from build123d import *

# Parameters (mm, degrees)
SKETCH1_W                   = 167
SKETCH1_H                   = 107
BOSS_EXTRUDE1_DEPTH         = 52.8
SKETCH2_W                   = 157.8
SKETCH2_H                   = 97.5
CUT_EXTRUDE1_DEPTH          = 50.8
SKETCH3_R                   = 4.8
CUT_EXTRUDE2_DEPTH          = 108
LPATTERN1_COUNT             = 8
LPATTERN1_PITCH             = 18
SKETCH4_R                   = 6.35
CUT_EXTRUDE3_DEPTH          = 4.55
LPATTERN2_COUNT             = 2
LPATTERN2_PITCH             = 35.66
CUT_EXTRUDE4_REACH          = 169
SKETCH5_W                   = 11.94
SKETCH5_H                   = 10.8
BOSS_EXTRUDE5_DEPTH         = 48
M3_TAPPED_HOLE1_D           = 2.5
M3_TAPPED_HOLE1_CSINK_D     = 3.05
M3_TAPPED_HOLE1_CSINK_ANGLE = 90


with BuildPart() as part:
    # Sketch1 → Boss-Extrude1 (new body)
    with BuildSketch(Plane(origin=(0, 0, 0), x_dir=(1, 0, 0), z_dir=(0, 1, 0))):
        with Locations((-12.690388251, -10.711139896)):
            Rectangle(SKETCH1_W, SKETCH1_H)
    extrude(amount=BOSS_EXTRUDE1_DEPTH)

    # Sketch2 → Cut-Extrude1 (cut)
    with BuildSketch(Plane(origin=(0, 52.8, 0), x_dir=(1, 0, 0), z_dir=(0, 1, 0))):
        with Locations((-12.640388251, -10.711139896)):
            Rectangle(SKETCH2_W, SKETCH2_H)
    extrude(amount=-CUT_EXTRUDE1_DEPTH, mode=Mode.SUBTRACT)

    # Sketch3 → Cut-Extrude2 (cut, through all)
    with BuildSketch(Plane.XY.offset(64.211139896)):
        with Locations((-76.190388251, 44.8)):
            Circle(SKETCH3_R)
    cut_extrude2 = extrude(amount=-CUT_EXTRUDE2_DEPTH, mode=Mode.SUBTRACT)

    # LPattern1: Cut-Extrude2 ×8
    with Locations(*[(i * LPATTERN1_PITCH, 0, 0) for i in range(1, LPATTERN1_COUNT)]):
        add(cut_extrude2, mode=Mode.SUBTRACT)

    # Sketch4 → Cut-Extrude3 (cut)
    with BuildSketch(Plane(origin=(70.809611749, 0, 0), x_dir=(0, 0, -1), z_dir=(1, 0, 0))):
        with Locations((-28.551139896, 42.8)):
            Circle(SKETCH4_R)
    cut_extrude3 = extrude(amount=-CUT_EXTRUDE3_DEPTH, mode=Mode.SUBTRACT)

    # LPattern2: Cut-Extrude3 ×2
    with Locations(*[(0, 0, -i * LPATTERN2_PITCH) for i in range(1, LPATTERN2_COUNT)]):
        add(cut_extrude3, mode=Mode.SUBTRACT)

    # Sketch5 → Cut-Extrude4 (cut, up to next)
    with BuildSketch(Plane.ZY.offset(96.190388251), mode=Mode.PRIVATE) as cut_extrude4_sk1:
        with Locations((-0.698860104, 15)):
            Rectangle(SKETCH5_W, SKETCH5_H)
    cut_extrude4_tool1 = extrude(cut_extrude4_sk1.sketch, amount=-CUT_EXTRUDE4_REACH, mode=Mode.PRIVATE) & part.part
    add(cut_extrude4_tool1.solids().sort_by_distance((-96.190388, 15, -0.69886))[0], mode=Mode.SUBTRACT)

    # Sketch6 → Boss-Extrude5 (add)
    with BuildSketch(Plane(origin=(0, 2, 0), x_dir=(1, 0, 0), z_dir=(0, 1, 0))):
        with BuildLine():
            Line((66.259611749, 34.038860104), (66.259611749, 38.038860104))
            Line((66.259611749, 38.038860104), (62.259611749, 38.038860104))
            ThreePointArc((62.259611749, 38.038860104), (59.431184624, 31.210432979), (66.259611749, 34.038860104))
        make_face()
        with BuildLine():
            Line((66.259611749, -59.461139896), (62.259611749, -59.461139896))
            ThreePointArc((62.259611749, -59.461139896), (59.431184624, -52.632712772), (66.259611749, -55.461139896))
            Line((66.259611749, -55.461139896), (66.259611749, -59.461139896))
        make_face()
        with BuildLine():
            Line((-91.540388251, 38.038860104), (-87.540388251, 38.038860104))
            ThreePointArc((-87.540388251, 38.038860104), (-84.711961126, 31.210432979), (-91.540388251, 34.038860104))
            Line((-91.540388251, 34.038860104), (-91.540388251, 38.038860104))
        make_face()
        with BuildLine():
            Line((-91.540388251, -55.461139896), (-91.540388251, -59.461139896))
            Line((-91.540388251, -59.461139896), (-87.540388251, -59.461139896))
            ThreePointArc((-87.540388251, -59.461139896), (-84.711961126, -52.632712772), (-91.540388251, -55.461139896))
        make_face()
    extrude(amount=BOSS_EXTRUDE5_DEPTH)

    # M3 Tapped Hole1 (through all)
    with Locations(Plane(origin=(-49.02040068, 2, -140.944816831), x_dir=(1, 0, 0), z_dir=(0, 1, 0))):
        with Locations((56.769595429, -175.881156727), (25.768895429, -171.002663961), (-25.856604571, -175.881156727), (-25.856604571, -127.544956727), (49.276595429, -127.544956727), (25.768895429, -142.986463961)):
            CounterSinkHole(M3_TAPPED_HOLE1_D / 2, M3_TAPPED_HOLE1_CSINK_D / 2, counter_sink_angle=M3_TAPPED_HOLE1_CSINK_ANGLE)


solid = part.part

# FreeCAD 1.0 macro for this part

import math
import FreeCAD as App
import Part
import Sketcher

doc = App.newDocument("Part")
body = doc.addObject("PartDesign::Body", "Body")

# Sketch on XZ plane
sketch1 = body.newObject("Sketcher::SketchObject", "Sketch")
sketch1.AttachmentSupport = (doc.getObject("XZ_Plane"), [""])
sketch1.MapMode = "FlatFace"
sketch1.addGeometry([
    Part.LineSegment(App.Vector(-96, -43, 0), App.Vector(-96, 64, 0)),
    Part.LineSegment(App.Vector(-96, 64, 0), App.Vector(71, 64, 0)),
    Part.LineSegment(App.Vector(71, 64, 0), App.Vector(71, -43, 0)),
    Part.LineSegment(App.Vector(71, -43, 0), App.Vector(-96, -43, 0)),
], False)
sketch1.addConstraint([
    Sketcher.Constraint("Coincident", 0, 2, 1, 1),
    Sketcher.Constraint("Coincident", 1, 2, 2, 1),
    Sketcher.Constraint("Coincident", 2, 2, 3, 1),
    Sketcher.Constraint("Coincident", 3, 2, 0, 1),
    Sketcher.Constraint("Vertical", 0),
    Sketcher.Constraint("Horizontal", 1),
    Sketcher.Constraint("Vertical", 2),
    Sketcher.Constraint("Horizontal", 3),
    Sketcher.Constraint("DistanceX", 1, 1, 1, 2, 167.0),
    Sketcher.Constraint("DistanceY", 0, 1, 0, 2, 107.0),
    Sketcher.Constraint("DistanceX", 0, 2, -1, 1, 96.190388),
    Sketcher.Constraint("DistanceY", -1, 1, 0, 2, 64.21114),
])
pad1 = body.newObject("PartDesign::Pad", "Pad")
pad1.Profile = sketch1
pad1.Length = 52.8
pad1.Reversed = True

# Sketch on XZ plane
sketch2 = body.newObject("Sketcher::SketchObject", "Sketch001")
sketch2.AttachmentSupport = (doc.getObject("XZ_Plane"), [""])
sketch2.MapMode = "FlatFace"
sketch2.AttachmentOffset = App.Placement(App.Vector(0, 0, -52.8), App.Rotation())
sketch2.addGeometry([
    Part.LineSegment(App.Vector(-92, -38, 0), App.Vector(-92, 59, 0)),
    Part.LineSegment(App.Vector(-92, 59, 0), App.Vector(66, 59, 0)),
    Part.LineSegment(App.Vector(66, 59, 0), App.Vector(66, -38, 0)),
    Part.LineSegment(App.Vector(66, -38, 0), App.Vector(-92, -38, 0)),
], False)
sketch2.addConstraint([
    Sketcher.Constraint("Coincident", 0, 2, 1, 1),
    Sketcher.Constraint("Coincident", 1, 2, 2, 1),
    Sketcher.Constraint("Coincident", 2, 2, 3, 1),
    Sketcher.Constraint("Coincident", 3, 2, 0, 1),
    Sketcher.Constraint("Vertical", 0),
    Sketcher.Constraint("Horizontal", 1),
    Sketcher.Constraint("Vertical", 2),
    Sketcher.Constraint("Horizontal", 3),
    Sketcher.Constraint("DistanceX", 1, 1, 1, 2, 157.8),
    Sketcher.Constraint("DistanceY", 0, 1, 0, 2, 97.5),
    Sketcher.Constraint("DistanceX", 0, 2, -1, 1, 91.540388),
    Sketcher.Constraint("DistanceY", -1, 1, 0, 2, 59.46114),
])
pocket1 = body.newObject("PartDesign::Pocket", "Pocket")
pocket1.Profile = sketch2
pocket1.Length = 50.8
pocket1.Reversed = True

# Sketch on XY plane
sketch3 = body.newObject("Sketcher::SketchObject", "Sketch002")
sketch3.AttachmentSupport = (doc.getObject("XY_Plane"), [""])
sketch3.MapMode = "FlatFace"
sketch3.AttachmentOffset = App.Placement(App.Vector(0, 0, 64.21114), App.Rotation())
sketch3.addGeometry(Part.Circle(App.Vector(-76.2, 44.8, 0), App.Vector(0, 0, 1), 4.8), False)
sketch3.addConstraint([
    Sketcher.Constraint("Diameter", 0, 9.6),
    Sketcher.Constraint("DistanceY", -1, 1, 0, 3, 44.8),
    Sketcher.Constraint("DistanceX", 0, 3, -1, 1, 76.190388),
])
pocket2 = body.newObject("PartDesign::Pocket", "Pocket001")
pocket2.Profile = sketch3
pocket2.Type = "ThroughAll"
doc.recompute()

linearpattern = body.newObject("PartDesign::LinearPattern", "LinearPattern")
linearpattern.Originals = [pocket2]
linearpattern.Direction = (doc.getObject("X_Axis"), [""])
linearpattern.Mode = "offset"
linearpattern.Offset = 18
linearpattern.Occurrences = 8
body.Tip = linearpattern

# Sketch on YZ plane
sketch4 = body.newObject("Sketcher::SketchObject", "Sketch003")
sketch4.AttachmentSupport = (doc.getObject("YZ_Plane"), [""])
sketch4.MapMode = "FlatFace"
sketch4.AttachmentOffset = App.Placement(App.Vector(0, 0, 70.809612), App.Rotation())
sketch4.addGeometry(Part.Circle(App.Vector(43, 29, 0), App.Vector(0, 0, 1), 6), False)
sketch4.addConstraint([
    Sketcher.Constraint("Diameter", 0, 12.7),
    Sketcher.Constraint("DistanceX", -1, 1, 0, 3, 42.8),
    Sketcher.Constraint("DistanceY", -1, 1, 0, 3, 28.55114),
])
pocket3 = body.newObject("PartDesign::Pocket", "Pocket002")
pocket3.Profile = sketch4
pocket3.Length = 4.55
doc.recompute()

linearpattern2 = body.newObject("PartDesign::LinearPattern", "LinearPattern001")
linearpattern2.Originals = [pocket3]
linearpattern2.Direction = (doc.getObject("Z_Axis"), [""])
linearpattern2.Mode = "offset"
linearpattern2.Offset = 35.66
linearpattern2.Occurrences = 2
linearpattern2.Reversed = True
body.Tip = linearpattern2

# Sketch on YZ plane
sketch5 = body.newObject("Sketcher::SketchObject", "Sketch004")
sketch5.AttachmentSupport = (doc.getObject("YZ_Plane"), [""])
sketch5.MapMode = "FlatFace"
sketch5.AttachmentOffset = App.Placement(App.Vector(0, 0, -96.190388), App.Rotation())
sketch5.addGeometry([
    Part.LineSegment(App.Vector(20, -7, 0), App.Vector(10, -7, 0)),
    Part.LineSegment(App.Vector(10, -7, 0), App.Vector(10, 5, 0)),
    Part.LineSegment(App.Vector(10, 5, 0), App.Vector(20, 5, 0)),
    Part.LineSegment(App.Vector(20, 5, 0), App.Vector(20, -7, 0)),
], False)
sketch5.addConstraint([
    Sketcher.Constraint("Coincident", 0, 2, 1, 1),
    Sketcher.Constraint("Coincident", 1, 2, 2, 1),
    Sketcher.Constraint("Coincident", 2, 2, 3, 1),
    Sketcher.Constraint("Coincident", 3, 2, 0, 1),
    Sketcher.Constraint("Horizontal", 0),
    Sketcher.Constraint("Vertical", 1),
    Sketcher.Constraint("Horizontal", 2),
    Sketcher.Constraint("Vertical", 3),
    Sketcher.Constraint("DistanceX", 0, 2, 0, 1, 10.8),
    Sketcher.Constraint("DistanceY", 1, 1, 1, 2, 11.94),
    Sketcher.Constraint("DistanceX", -1, 1, 0, 2, 9.6),
    Sketcher.Constraint("DistanceY", 0, 2, -1, 1, 6.66886),
])
pocket4 = body.newObject("PartDesign::Pocket", "Pocket003")
pocket4.Profile = sketch5
pocket4.Type = "UpToFirst"
pocket4.Reversed = True

# Sketch on XZ plane
sketch6 = body.newObject("Sketcher::SketchObject", "Sketch005")
sketch6.AttachmentSupport = (doc.getObject("XZ_Plane"), [""])
sketch6.MapMode = "FlatFace"
sketch6.AttachmentOffset = App.Placement(App.Vector(0, 0, -2), App.Rotation())
sketch6.addGeometry([
    Part.LineSegment(App.Vector(66.3, -34, 0), App.Vector(66.3, -38, 0)),  # 0
    Part.LineSegment(App.Vector(66.3, -38, 0), App.Vector(62.3, -38, 0)),  # 1
    Part.ArcOfCircle(Part.Circle(App.Vector(62.3, -34, 0), App.Vector(0, 0, 1), 4), math.radians(0), math.radians(270)),  # 2
    Part.LineSegment(App.Vector(62.3, 59.5, 0), App.Vector(66.3, 59.5, 0)),  # 3
    Part.LineSegment(App.Vector(66.3, 59.5, 0), App.Vector(66.3, 55.5, 0)),  # 4
    Part.ArcOfCircle(Part.Circle(App.Vector(62.3, 55.5, 0), App.Vector(0, 0, 1), 4), math.radians(90), math.radians(360)),  # 5
    Part.LineSegment(App.Vector(-87.5, -38, 0), App.Vector(-91.5, -38, 0)),  # 6
    Part.LineSegment(App.Vector(-91.5, -38, 0), App.Vector(-91.5, -34, 0)),  # 7
    Part.ArcOfCircle(Part.Circle(App.Vector(-87.5, -34, 0), App.Vector(0, 0, 1), 4), math.radians(-90), math.radians(180)),  # 8
    Part.LineSegment(App.Vector(-91.5, 55.5, 0), App.Vector(-91.5, 59.5, 0)),  # 9
    Part.LineSegment(App.Vector(-91.5, 59.5, 0), App.Vector(-87.5, 59.5, 0)),  # 10
    Part.ArcOfCircle(Part.Circle(App.Vector(-87.5, 55.5, 0), App.Vector(0, 0, 1), 4), math.radians(180), math.radians(450)),  # 11
], False)
sketch6.addConstraint([
    Sketcher.Constraint("Coincident", 0, 2, 1, 1),
    Sketcher.Constraint("Tangent", 1, 2, 2, 2),
    Sketcher.Constraint("Tangent", 2, 1, 0, 1),
    Sketcher.Constraint("Coincident", 3, 2, 4, 1),
    Sketcher.Constraint("Tangent", 4, 2, 5, 2),
    Sketcher.Constraint("Tangent", 5, 1, 3, 1),
    Sketcher.Constraint("Coincident", 6, 2, 7, 1),
    Sketcher.Constraint("Tangent", 7, 2, 8, 2),
    Sketcher.Constraint("Tangent", 8, 1, 6, 1),
    Sketcher.Constraint("Coincident", 9, 2, 10, 1),
    Sketcher.Constraint("Tangent", 10, 2, 11, 2),
    Sketcher.Constraint("Tangent", 11, 1, 9, 1),
    Sketcher.Constraint("Vertical", 0),
    Sketcher.Constraint("Horizontal", 1),
    Sketcher.Constraint("Horizontal", 3),
    Sketcher.Constraint("Vertical", 4),
    Sketcher.Constraint("Horizontal", 6),
    Sketcher.Constraint("Vertical", 7),
    Sketcher.Constraint("Vertical", 9),
    Sketcher.Constraint("Horizontal", 10),
    Sketcher.Constraint("Equal", 2, 5),
    Sketcher.Constraint("Equal", 5, 8),
    Sketcher.Constraint("Equal", 8, 11),
    Sketcher.Constraint("Horizontal", 2, 3, 8, 3),
    Sketcher.Constraint("Horizontal", 5, 3, 11, 3),
    Sketcher.Constraint("Vertical", 2, 3, 5, 3),
    Sketcher.Constraint("Vertical", 8, 3, 11, 3),
    Sketcher.Constraint("Radius", 2, 4.0),
    Sketcher.Constraint("DistanceY", 2, 3, 5, 3, 89.5),
    Sketcher.Constraint("DistanceX", 8, 3, 2, 3, 149.8),
    Sketcher.Constraint("DistanceX", -1, 1, 2, 3, 62.259612),
    Sketcher.Constraint("DistanceY", 2, 3, -1, 1, 34.03886),
])
pad2 = body.newObject("PartDesign::Pad", "Pad001")
pad2.Profile = sketch6
pad2.Length = 48
pad2.Reversed = True

# Sketch on XZ plane
sketch7 = body.newObject("Sketcher::SketchObject", "Sketch006")
sketch7.AttachmentSupport = (doc.getObject("XZ_Plane"), [""])
sketch7.MapMode = "FlatFace"
sketch7.AttachmentOffset = App.Placement(App.Vector(0, 0, -2), App.Rotation())
sketch7.addGeometry([
    Part.Circle(App.Vector(7.7, 34.9, 0), App.Vector(0, 0, 1), 1.2),  # 0
    Part.Circle(App.Vector(-23.3, 30.1, 0), App.Vector(0, 0, 1), 1.2),  # 1
    Part.Circle(App.Vector(-74.9, 34.9, 0), App.Vector(0, 0, 1), 1.2),  # 2
    Part.Circle(App.Vector(-74.9, -13.4, 0), App.Vector(0, 0, 1), 1.2),  # 3
    Part.Circle(App.Vector(0.3, -13.4, 0), App.Vector(0, 0, 1), 1.2),  # 4
    Part.Circle(App.Vector(-23.3, 2, 0), App.Vector(0, 0, 1), 1.2),  # 5
], False)
sketch7.addConstraint([
    Sketcher.Constraint("Equal", 0, 1),
    Sketcher.Constraint("Equal", 1, 2),
    Sketcher.Constraint("Equal", 2, 3),
    Sketcher.Constraint("Equal", 3, 4),
    Sketcher.Constraint("Equal", 4, 5),
    Sketcher.Constraint("Horizontal", 0, 3, 2, 3),
    Sketcher.Constraint("Horizontal", 3, 3, 4, 3),
    Sketcher.Constraint("Vertical", 2, 3, 3, 3),
    Sketcher.Constraint("Vertical", 1, 3, 5, 3),
    Sketcher.Constraint("Diameter", 0, 2.5),
    Sketcher.Constraint("DistanceX", 4, 3, 0, 3, 7.493),
    Sketcher.Constraint("DistanceX", 1, 3, 0, 3, 31.0007),
    Sketcher.Constraint("DistanceX", 2, 3, 1, 3, 51.6255),
    Sketcher.Constraint("DistanceY", 3, 3, 2, 3, 48.3362),
    Sketcher.Constraint("DistanceY", 5, 3, 1, 3, 28.0162),
    Sketcher.Constraint("DistanceY", -1, 1, 0, 3, 34.93634),
    Sketcher.Constraint("DistanceX", -1, 1, 0, 3, 7.749195),
    Sketcher.Constraint("DistanceY", -1, 1, 1, 3, 30.057847),
])
doc.recompute()
hole = body.newObject("PartDesign::Hole", "Hole")
hole.Profile = sketch7
hole.ThreadType = "None"
hole.Diameter = 2.5
hole.DepthType = "ThroughAll"
hole.HoleCutType = "Countersink"
hole.HoleCutDiameter = 3.05
hole.HoleCutCountersinkAngle = 90
hole.Reversed = True

doc.recompute()
